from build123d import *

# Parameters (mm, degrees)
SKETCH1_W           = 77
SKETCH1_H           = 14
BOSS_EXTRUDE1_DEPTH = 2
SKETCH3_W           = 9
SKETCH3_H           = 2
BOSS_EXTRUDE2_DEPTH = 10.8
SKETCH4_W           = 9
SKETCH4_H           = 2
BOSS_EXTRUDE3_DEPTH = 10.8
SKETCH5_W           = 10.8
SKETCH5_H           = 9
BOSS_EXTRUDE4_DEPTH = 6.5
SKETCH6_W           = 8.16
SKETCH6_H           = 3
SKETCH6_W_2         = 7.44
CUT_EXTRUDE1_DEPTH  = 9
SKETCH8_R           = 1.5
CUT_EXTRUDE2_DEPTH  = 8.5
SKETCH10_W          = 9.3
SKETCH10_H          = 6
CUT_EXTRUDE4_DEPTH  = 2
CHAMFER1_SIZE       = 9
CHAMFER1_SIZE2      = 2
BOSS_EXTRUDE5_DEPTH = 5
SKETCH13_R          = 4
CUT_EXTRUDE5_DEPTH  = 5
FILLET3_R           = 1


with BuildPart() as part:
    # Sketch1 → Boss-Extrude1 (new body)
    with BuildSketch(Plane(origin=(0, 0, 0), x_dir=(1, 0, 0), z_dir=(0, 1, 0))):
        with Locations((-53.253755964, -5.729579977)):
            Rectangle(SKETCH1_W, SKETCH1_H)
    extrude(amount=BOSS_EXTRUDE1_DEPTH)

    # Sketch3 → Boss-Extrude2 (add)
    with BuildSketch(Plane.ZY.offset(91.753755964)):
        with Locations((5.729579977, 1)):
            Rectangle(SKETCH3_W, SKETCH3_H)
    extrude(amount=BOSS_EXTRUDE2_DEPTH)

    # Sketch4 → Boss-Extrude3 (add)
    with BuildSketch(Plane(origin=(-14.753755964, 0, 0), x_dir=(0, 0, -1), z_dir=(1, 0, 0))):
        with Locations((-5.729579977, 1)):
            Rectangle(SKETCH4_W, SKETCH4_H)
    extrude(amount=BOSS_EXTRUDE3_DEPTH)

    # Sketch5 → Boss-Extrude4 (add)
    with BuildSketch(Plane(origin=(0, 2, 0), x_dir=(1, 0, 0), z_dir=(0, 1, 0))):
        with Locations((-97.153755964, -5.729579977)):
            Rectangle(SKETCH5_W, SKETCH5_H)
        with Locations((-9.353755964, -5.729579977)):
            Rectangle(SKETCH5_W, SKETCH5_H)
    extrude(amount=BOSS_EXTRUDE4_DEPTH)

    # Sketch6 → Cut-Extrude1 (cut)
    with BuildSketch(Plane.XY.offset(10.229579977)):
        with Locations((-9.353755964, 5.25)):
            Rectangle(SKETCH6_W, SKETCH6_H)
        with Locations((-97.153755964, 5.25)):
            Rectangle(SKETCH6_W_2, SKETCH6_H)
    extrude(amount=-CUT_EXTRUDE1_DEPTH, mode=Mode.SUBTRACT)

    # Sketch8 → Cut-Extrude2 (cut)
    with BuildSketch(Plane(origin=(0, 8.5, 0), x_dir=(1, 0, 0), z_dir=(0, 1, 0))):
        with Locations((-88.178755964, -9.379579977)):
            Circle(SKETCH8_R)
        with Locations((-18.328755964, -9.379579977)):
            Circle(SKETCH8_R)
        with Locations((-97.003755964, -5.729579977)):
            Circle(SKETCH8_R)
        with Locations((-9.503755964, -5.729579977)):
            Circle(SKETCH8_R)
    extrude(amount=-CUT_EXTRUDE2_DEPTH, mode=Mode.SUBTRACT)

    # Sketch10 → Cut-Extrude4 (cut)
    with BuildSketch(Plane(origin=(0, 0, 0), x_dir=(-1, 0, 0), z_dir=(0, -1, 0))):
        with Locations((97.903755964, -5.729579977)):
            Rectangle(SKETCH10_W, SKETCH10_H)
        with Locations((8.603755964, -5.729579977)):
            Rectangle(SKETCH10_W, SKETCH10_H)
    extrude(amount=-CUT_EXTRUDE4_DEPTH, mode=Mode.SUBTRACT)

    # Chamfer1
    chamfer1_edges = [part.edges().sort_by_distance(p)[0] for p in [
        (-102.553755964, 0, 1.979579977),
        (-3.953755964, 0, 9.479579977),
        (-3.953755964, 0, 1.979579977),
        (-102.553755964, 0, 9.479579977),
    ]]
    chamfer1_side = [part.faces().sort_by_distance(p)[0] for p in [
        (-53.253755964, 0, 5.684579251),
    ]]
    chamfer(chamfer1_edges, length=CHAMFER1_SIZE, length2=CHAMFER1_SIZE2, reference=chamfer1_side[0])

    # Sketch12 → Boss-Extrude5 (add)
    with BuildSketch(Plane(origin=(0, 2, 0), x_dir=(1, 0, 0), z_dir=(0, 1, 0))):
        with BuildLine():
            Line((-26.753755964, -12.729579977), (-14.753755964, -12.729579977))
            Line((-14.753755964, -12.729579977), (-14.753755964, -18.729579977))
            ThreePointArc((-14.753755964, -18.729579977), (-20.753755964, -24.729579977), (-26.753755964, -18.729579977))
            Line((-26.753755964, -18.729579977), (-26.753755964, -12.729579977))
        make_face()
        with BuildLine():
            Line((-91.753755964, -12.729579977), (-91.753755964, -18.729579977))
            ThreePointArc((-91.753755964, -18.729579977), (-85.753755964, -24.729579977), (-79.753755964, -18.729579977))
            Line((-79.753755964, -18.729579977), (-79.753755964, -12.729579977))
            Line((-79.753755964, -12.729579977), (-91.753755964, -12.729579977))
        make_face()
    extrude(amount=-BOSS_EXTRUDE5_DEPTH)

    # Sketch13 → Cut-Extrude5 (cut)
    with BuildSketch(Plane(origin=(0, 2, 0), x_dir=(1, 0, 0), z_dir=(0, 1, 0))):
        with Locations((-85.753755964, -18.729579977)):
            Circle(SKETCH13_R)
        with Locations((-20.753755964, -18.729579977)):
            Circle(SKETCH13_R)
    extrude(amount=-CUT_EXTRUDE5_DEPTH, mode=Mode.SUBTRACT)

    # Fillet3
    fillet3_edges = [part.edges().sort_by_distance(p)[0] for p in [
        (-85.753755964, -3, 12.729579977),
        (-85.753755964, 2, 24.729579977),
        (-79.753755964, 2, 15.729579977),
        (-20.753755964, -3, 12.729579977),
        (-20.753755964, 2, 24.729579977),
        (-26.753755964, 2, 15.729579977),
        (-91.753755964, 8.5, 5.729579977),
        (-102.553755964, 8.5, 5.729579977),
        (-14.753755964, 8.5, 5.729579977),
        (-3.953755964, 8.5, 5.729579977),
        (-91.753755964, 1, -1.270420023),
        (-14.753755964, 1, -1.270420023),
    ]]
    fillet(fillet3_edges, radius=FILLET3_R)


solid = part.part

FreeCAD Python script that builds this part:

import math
import FreeCAD as App
import Part
import Sketcher
from FreeCAD import Vector
Q = App.Units.Quantity


def edges_at(feature, points):
    """Names of the edges that pass closest to the given points."""
    edges = feature.Shape.Edges
    near = lambda p: min(range(len(edges)), key=lambda i: edges[i].distToShape(Part.Vertex(*p))[0])
    return sorted({f"Edge{near(p) + 1}" for p in points})

doc = App.newDocument("Part")
body = doc.addObject("PartDesign::Body", "Body")

sketch1 = body.newObject("Sketcher::SketchObject", "Sketch")
sketch1.AttachmentSupport = (doc.getObject("XZ_Plane"), [""])
sketch1.MapMode = "FlatFace"
sketch1.addGeometry(Part.LineSegment(Vector(-92, -1, 0), Vector(-92, 13, 0)), False)
sketch1.addGeometry(Part.LineSegment(Vector(-92, 13, 0), Vector(-15, 13, 0)), False)
sketch1.addGeometry(Part.LineSegment(Vector(-15, 13, 0), Vector(-15, -1, 0)), False)
sketch1.addGeometry(Part.LineSegment(Vector(-15, -1, 0), Vector(-92, -1, 0)), False)
sketch1.addConstraint(Sketcher.Constraint("Coincident", 0, 2, 1, 1))
sketch1.addConstraint(Sketcher.Constraint("Coincident", 1, 2, 2, 1))
sketch1.addConstraint(Sketcher.Constraint("Coincident", 2, 2, 3, 1))
sketch1.addConstraint(Sketcher.Constraint("Coincident", 3, 2, 0, 1))
sketch1.addConstraint(Sketcher.Constraint("Vertical", 0))
sketch1.addConstraint(Sketcher.Constraint("Horizontal", 1))
sketch1.addConstraint(Sketcher.Constraint("Vertical", 2))
sketch1.addConstraint(Sketcher.Constraint("Horizontal", 3))
sketch1.addConstraint(Sketcher.Constraint("DistanceX", 1, 1, 1, 2, Q("77 mm")))
sketch1.addConstraint(Sketcher.Constraint("DistanceY", 0, 1, 0, 2, Q("14 mm")))
sketch1.addConstraint(Sketcher.Constraint("DistanceY", -1, 1, 0, 2, Q("12.72958 mm")))
sketch1.addConstraint(Sketcher.Constraint("DistanceX", 0, 2, -1, 1, Q("91.753756 mm")))
pad1 = body.newObject("PartDesign::Pad", "Pad")
pad1.Profile = sketch1
pad1.Length = 2
pad1.Reversed = True

sketch2 = body.newObject("Sketcher::SketchObject", "Sketch001")
sketch2.AttachmentSupport = (doc.getObject("YZ_Plane"), [""])
sketch2.MapMode = "FlatFace"
sketch2.AttachmentOffset = App.Placement(Vector(0, 0, -91.753756), App.Rotation())
sketch2.addGeometry(Part.LineSegment(Vector(2, 1.2, 0), Vector(0, 1.2, 0)), False)
sketch2.addGeometry(Part.LineSegment(Vector(0, 1.2, 0), Vector(0, 10.2, 0)), False)
sketch2.addGeometry(Part.LineSegment(Vector(0, 10.2, 0), Vector(2, 10.2, 0)), False)
sketch2.addGeometry(Part.LineSegment(Vector(2, 10.2, 0), Vector(2, 1.2, 0)), False)
sketch2.addConstraint(Sketcher.Constraint("Coincident", 0, 2, 1, 1))
sketch2.addConstraint(Sketcher.Constraint("Coincident", 1, 2, 2, 1))
sketch2.addConstraint(Sketcher.Constraint("Coincident", 2, 2, 3, 1))
sketch2.addConstraint(Sketcher.Constraint("Coincident", 3, 2, 0, 1))
sketch2.addConstraint(Sketcher.Constraint("Horizontal", 0))
sketch2.addConstraint(Sketcher.Constraint("Vertical", 1))
sketch2.addConstraint(Sketcher.Constraint("Horizontal", 2))
sketch2.addConstraint(Sketcher.Constraint("Vertical", 3))
sketch2.addConstraint(Sketcher.Constraint("PointOnObject", 0, 2, -2))
sketch2.addConstraint(Sketcher.Constraint("DistanceX", 0, 2, 0, 1, Q("2 mm")))
sketch2.addConstraint(Sketcher.Constraint("DistanceY", 1, 1, 1, 2, Q("9 mm")))
sketch2.addConstraint(Sketcher.Constraint("DistanceY", -1, 1, 0, 2, Q("1.22958 mm")))
pad2 = body.newObject("PartDesign::Pad", "Pad001")
pad2.Profile = sketch2
pad2.Length = 10.8
pad2.Reversed = True

sketch3 = body.newObject("Sketcher::SketchObject", "Sketch002")
sketch3.AttachmentSupport = (doc.getObject("YZ_Plane"), [""])
sketch3.MapMode = "FlatFace"
sketch3.AttachmentOffset = App.Placement(Vector(0, 0, -14.753756), App.Rotation())
sketch3.addGeometry(Part.LineSegment(Vector(2, 10.2, 0), Vector(0, 10.2, 0)), False)
sketch3.addGeometry(Part.LineSegment(Vector(0, 10.2, 0), Vector(0, 1.2, 0)), False)
sketch3.addGeometry(Part.LineSegment(Vector(0, 1.2, 0), Vector(2, 1.2, 0)), False)
sketch3.addGeometry(Part.LineSegment(Vector(2, 1.2, 0), Vector(2, 10.2, 0)), False)
sketch3.addConstraint(Sketcher.Constraint("Coincident", 0, 2, 1, 1))
sketch3.addConstraint(Sketcher.Constraint("Coincident", 1, 2, 2, 1))
sketch3.addConstraint(Sketcher.Constraint("Coincident", 2, 2, 3, 1))
sketch3.addConstraint(Sketcher.Constraint("Coincident", 3, 2, 0, 1))
sketch3.addConstraint(Sketcher.Constraint("Horizontal", 0))
sketch3.addConstraint(Sketcher.Constraint("Vertical", 1))
sketch3.addConstraint(Sketcher.Constraint("Horizontal", 2))
sketch3.addConstraint(Sketcher.Constraint("Vertical", 3))
sketch3.addConstraint(Sketcher.Constraint("PointOnObject", 0, 2, -2))
sketch3.addConstraint(Sketcher.Constraint("DistanceX", 0, 2, 0, 1, Q("2 mm")))
sketch3.addConstraint(Sketcher.Constraint("DistanceY", 1, 2, 1, 1, Q("9 mm")))
sketch3.addConstraint(Sketcher.Constraint("DistanceY", -1, 1, 0, 2, Q("10.22958 mm")))
pad3 = body.newObject("PartDesign::Pad", "Pad002")
pad3.Profile = sketch3
pad3.Length = 10.8

sketch4 = body.newObject("Sketcher::SketchObject", "Sketch003")
sketch4.AttachmentSupport = (doc.getObject("XZ_Plane"), [""])
sketch4.MapMode = "FlatFace"
sketch4.AttachmentOffset = App.Placement(Vector(0, 0, -2), App.Rotation())
sketch4.addGeometry(Part.LineSegment(Vector(-103, 1, 0), Vector(-103, 10, 0)), False)
sketch4.addGeometry(Part.LineSegment(Vector(-103, 10, 0), Vector(-92, 10, 0)), False)
sketch4.addGeometry(Part.LineSegment(Vector(-92, 10, 0), Vector(-92, 1, 0)), False)
sketch4.addGeometry(Part.LineSegment(Vector(-92, 1, 0), Vector(-103, 1, 0)), False)
sketch4.addGeometry(Part.LineSegment(Vector(-15, 1, 0), Vector(-15, 10, 0)), False)
sketch4.addGeometry(Part.LineSegment(Vector(-15, 10, 0), Vector(-4, 10, 0)), False)
sketch4.addGeometry(Part.LineSegment(Vector(-4, 10, 0), Vector(-4, 1, 0)), False)
sketch4.addGeometry(Part.LineSegment(Vector(-4, 1, 0), Vector(-15, 1, 0)), False)
sketch4.addConstraint(Sketcher.Constraint("Coincident", 0, 2, 1, 1))
sketch4.addConstraint(Sketcher.Constraint("Coincident", 1, 2, 2, 1))
sketch4.addConstraint(Sketcher.Constraint("Coincident", 2, 2, 3, 1))
sketch4.addConstraint(Sketcher.Constraint("Coincident", 3, 2, 0, 1))
sketch4.addConstraint(Sketcher.Constraint("Coincident", 4, 2, 5, 1))
sketch4.addConstraint(Sketcher.Constraint("Coincident", 5, 2, 6, 1))
sketch4.addConstraint(Sketcher.Constraint("Coincident", 6, 2, 7, 1))
sketch4.addConstraint(Sketcher.Constraint("Coincident", 7, 2, 4, 1))
sketch4.addConstraint(Sketcher.Constraint("Vertical", 0))
sketch4.addConstraint(Sketcher.Constraint("Horizontal", 1))
sketch4.addConstraint(Sketcher.Constraint("Vertical", 2))
sketch4.addConstraint(Sketcher.Constraint("Horizontal", 3))
sketch4.addConstraint(Sketcher.Constraint("Vertical", 4))
sketch4.addConstraint(Sketcher.Constraint("Horizontal", 5))
sketch4.addConstraint(Sketcher.Constraint("Vertical", 6))
sketch4.addConstraint(Sketcher.Constraint("Horizontal", 7))
sketch4.addConstraint(Sketcher.Constraint("Horizontal", 1, 2, 4, 2))
sketch4.addConstraint(Sketcher.Constraint("Horizontal", 3, 2, 6, 2))
sketch4.addConstraint(Sketcher.Constraint("Equal", 3, 5))
sketch4.addConstraint(Sketcher.Constraint("DistanceY", 0, 1, 0, 2, Q("9 mm")))
sketch4.addConstraint(Sketcher.Constraint("DistanceX", 1, 1, 1, 2, Q("10.8 mm")))
sketch4.addConstraint(Sketcher.Constraint("DistanceX", 1, 2, 4, 2, Q("77 mm")))
sketch4.addConstraint(Sketcher.Constraint("DistanceY", -1, 1, 0, 2, Q("10.22958 mm")))
sketch4.addConstraint(Sketcher.Constraint("DistanceX", 0, 2, -1, 1, Q("102.553756 mm")))
pad4 = body.newObject("PartDesign::Pad", "Pad003")
pad4.Profile = sketch4
pad4.Length = 6.5
pad4.Reversed = True

sketch5 = body.newObject("Sketcher::SketchObject", "Sketch004")
sketch5.AttachmentSupport = (doc.getObject("XY_Plane"), [""])
sketch5.MapMode = "FlatFace"
sketch5.AttachmentOffset = App.Placement(Vector(0, 0, 10.22958), App.Rotation())
sketch5.addGeometry(Part.LineSegment(Vector(-13.4, 6.8, 0), Vector(-13.4, 3.8, 0)), False)
sketch5.addGeometry(Part.LineSegment(Vector(-13.4, 3.8, 0), Vector(-5.3, 3.8, 0)), False)
sketch5.addGeometry(Part.LineSegment(Vector(-5.3, 3.8, 0), Vector(-5.3, 6.8, 0)), False)
sketch5.addGeometry(Part.LineSegment(Vector(-5.3, 6.8, 0), Vector(-13.4, 6.8, 0)), False)
sketch5.addGeometry(Part.LineSegment(Vector(-100.9, 6.8, 0), Vector(-100.9, 3.8, 0)), False)
sketch5.addGeometry(Part.LineSegment(Vector(-100.9, 3.8, 0), Vector(-93.4, 3.8, 0)), False)
sketch5.addGeometry(Part.LineSegment(Vector(-93.4, 3.8, 0), Vector(-93.4, 6.8, 0)), False)
sketch5.addGeometry(Part.LineSegment(Vector(-93.4, 6.8, 0), Vector(-100.9, 6.8, 0)), False)
sketch5.addConstraint(Sketcher.Constraint("Coincident", 0, 2, 1, 1))
sketch5.addConstraint(Sketcher.Constraint("Coincident", 1, 2, 2, 1))
sketch5.addConstraint(Sketcher.Constraint("Coincident", 2, 2, 3, 1))
sketch5.addConstraint(Sketcher.Constraint("Coincident", 3, 2, 0, 1))
sketch5.addConstraint(Sketcher.Constraint("Coincident", 4, 2, 5, 1))
sketch5.addConstraint(Sketcher.Constraint("Coincident", 5, 2, 6, 1))
sketch5.addConstraint(Sketcher.Constraint("Coincident", 6, 2, 7, 1))
sketch5.addConstraint(Sketcher.Constraint("Coincident", 7, 2, 4, 1))
sketch5.addConstraint(Sketcher.Constraint("Vertical", 0))
sketch5.addConstraint(Sketcher.Constraint("Horizontal", 1))
sketch5.addConstraint(Sketcher.Constraint("Vertical", 2))
sketch5.addConstraint(Sketcher.Constraint("Horizontal", 3))
sketch5.addConstraint(Sketcher.Constraint("Vertical", 4))
sketch5.addConstraint(Sketcher.Constraint("Horizontal", 5))
sketch5.addConstraint(Sketcher.Constraint("Vertical", 6))
sketch5.addConstraint(Sketcher.Constraint("Horizontal", 7))
sketch5.addConstraint(Sketcher.Constraint("Horizontal", 1, 2, 4, 2))
sketch5.addConstraint(Sketcher.Constraint("Horizontal", 3, 2, 6, 2))
sketch5.addConstraint(Sketcher.Constraint("DistanceY", 0, 2, 0, 1, Q("3 mm")))
sketch5.addConstraint(Sketcher.Constraint("DistanceX", 5, 2, 0, 2, Q("80 mm")))
sketch5.addConstraint(Sketcher.Constraint("DistanceX", 1, 1, 1, 2, Q("8.16 mm")))
sketch5.addConstraint(Sketcher.Constraint("DistanceX", 5, 1, 5, 2, Q("7.44 mm")))
sketch5.addConstraint(Sketcher.Constraint("DistanceY", -1, 1, 0, 2, Q("3.75 mm")))
sketch5.addConstraint(Sketcher.Constraint("DistanceX", 0, 2, -1, 1, Q("13.433756 mm")))
pocket1 = body.newObject("PartDesign::Pocket", "Pocket")
pocket1.Profile = sketch5
pocket1.Length = 9

sketch6 = body.newObject("Sketcher::SketchObject", "Sketch005")
sketch6.AttachmentSupport = (doc.getObject("XZ_Plane"), [""])
sketch6.MapMode = "FlatFace"
sketch6.AttachmentOffset = App.Placement(Vector(0, 0, -8.5), App.Rotation())
sketch6.addGeometry(Part.Circle(Vector(-88.2, 9.4, 0), Vector(0, 0, 1), 1.5), False)
sketch6.addGeometry(Part.Circle(Vector(-18.3, 9.4, 0), Vector(0, 0, 1), 1.5), False)
sketch6.addGeometry(Part.Circle(Vector(-97, 5.7, 0), Vector(0, 0, 1), 1.5), False)
sketch6.addGeometry(Part.Circle(Vector(-9.5, 5.7, 0), Vector(0, 0, 1), 1.5), False)
sketch6.addConstraint(Sketcher.Constraint("Equal", 0, 1))
sketch6.addConstraint(Sketcher.Constraint("Equal", 1, 2))
sketch6.addConstraint(Sketcher.Constraint("Equal", 2, 3))
sketch6.addConstraint(Sketcher.Constraint("Horizontal", 0, 3, 1, 3))
sketch6.addConstraint(Sketcher.Constraint("Horizontal", 2, 3, 3, 3))
sketch6.addConstraint(Sketcher.Constraint("Diameter", 0, Q("3 mm")))
sketch6.addConstraint(Sketcher.Constraint("DistanceX", 2, 3, 3, 3, Q("87.5 mm")))
sketch6.addConstraint(Sketcher.Constraint("DistanceX", 0, 3, 1, 3, Q("69.85 mm")))
sketch6.addConstraint(Sketcher.Constraint("DistanceY", 2, 3, 0, 3, Q("3.65 mm")))
sketch6.addConstraint(Sketcher.Constraint("DistanceX", 2, 3, 0, 3, Q("8.825 mm")))
sketch6.addConstraint(Sketcher.Constraint("DistanceY", -1, 1, 0, 3, Q("9.37958 mm")))
sketch6.addConstraint(Sketcher.Constraint("DistanceX", 0, 3, -1, 1, Q("88.178756 mm")))
pocket2 = body.newObject("PartDesign::Pocket", "Pocket001")
pocket2.Profile = sketch6
pocket2.Length = 8.5
pocket2.Reversed = True

sketch7 = body.newObject("Sketcher::SketchObject", "Sketch006")
sketch7.AttachmentSupport = (doc.getObject("XZ_Plane"), [""])
sketch7.MapMode = "FlatFace"
sketch7.addGeometry(Part.LineSegment(Vector(-93, 3, 0), Vector(-93, 9, 0)), False)
sketch7.addGeometry(Part.LineSegment(Vector(-93, 9, 0), Vector(-103, 9, 0)), False)
sketch7.addGeometry(Part.LineSegment(Vector(-103, 9, 0), Vector(-103, 3, 0)), False)
sketch7.addGeometry(Part.LineSegment(Vector(-103, 3, 0), Vector(-93, 3, 0)), False)
sketch7.addGeometry(Part.LineSegment(Vector(-4, 3, 0), Vector(-4, 9, 0)), False)
sketch7.addGeometry(Part.LineSegment(Vector(-4, 9, 0), Vector(-13, 9, 0)), False)
sketch7.addGeometry(Part.LineSegment(Vector(-13, 9, 0), Vector(-13, 3, 0)), False)
sketch7.addGeometry(Part.LineSegment(Vector(-13, 3, 0), Vector(-4, 3, 0)), False)
sketch7.addConstraint(Sketcher.Constraint("Coincident", 0, 2, 1, 1))
sketch7.addConstraint(Sketcher.Constraint("Coincident", 1, 2, 2, 1))
sketch7.addConstraint(Sketcher.Constraint("Coincident", 2, 2, 3, 1))
sketch7.addConstraint(Sketcher.Constraint("Coincident", 3, 2, 0, 1))
sketch7.addConstraint(Sketcher.Constraint("Coincident", 4, 2, 5, 1))
sketch7.addConstraint(Sketcher.Constraint("Coincident", 5, 2, 6, 1))
sketch7.addConstraint(Sketcher.Constraint("Coincident", 6, 2, 7, 1))
sketch7.addConstraint(Sketcher.Constraint("Coincident", 7, 2, 4, 1))
sketch7.addConstraint(Sketcher.Constraint("Vertical", 0))
sketch7.addConstraint(Sketcher.Constraint("Horizontal", 1))
sketch7.addConstraint(Sketcher.Constraint("Vertical", 2))
sketch7.addConstraint(Sketcher.Constraint("Horizontal", 3))
sketch7.addConstraint(Sketcher.Constraint("Vertical", 4))
sketch7.addConstraint(Sketcher.Constraint("Horizontal", 5))
sketch7.addConstraint(Sketcher.Constraint("Vertical", 6))
sketch7.addConstraint(Sketcher.Constraint("Horizontal", 7))
sketch7.addConstraint(Sketcher.Constraint("Horizontal", 1, 2, 4, 2))
sketch7.addConstraint(Sketcher.Constraint("Horizontal", 3, 2, 6, 2))
sketch7.addConstraint(Sketcher.Constraint("Equal", 3, 5))
sketch7.addConstraint(Sketcher.Constraint("DistanceY", 0, 1, 0, 2, Q("6 mm")))
sketch7.addConstraint(Sketcher.Constraint("DistanceX", 1, 2, 1, 1, Q("9.3 mm")))
sketch7.addConstraint(Sketcher.Constraint("DistanceX", 0, 2, 5, 2, Q("80 mm")))
sketch7.addConstraint(Sketcher.Constraint("DistanceY", -1, 1, 0, 2, Q("8.72958 mm")))
sketch7.addConstraint(Sketcher.Constraint("DistanceX", 0, 2, -1, 1, Q("93.253756 mm")))
pocket3 = body.newObject("PartDesign::Pocket", "Pocket002")
pocket3.Profile = sketch7
pocket3.Length = 2
doc.recompute()

chamfer = body.newObject("PartDesign::Chamfer", "Chamfer")
chamfer.Base = (pocket3, edges_at(pocket3, [
    (-102.554, 0, 1.98),
    (-3.954, 0, 9.48),
    (-3.954, 0, 1.98),
    (-102.554, 0, 9.48),
]))
chamfer.ChamferType = "Two distances"
chamfer.Size = 9
chamfer.Size2 = 2

sketch8 = body.newObject("Sketcher::SketchObject", "Sketch007")
sketch8.AttachmentSupport = (doc.getObject("XZ_Plane"), [""])
sketch8.MapMode = "FlatFace"
sketch8.AttachmentOffset = App.Placement(Vector(0, 0, -2), App.Rotation())
sketch8.addGeometry(Part.LineSegment(Vector(-15, 13, 0), Vector(-27, 13, 0)), False)
sketch8.addGeometry(Part.LineSegment(Vector(-27, 13, 0), Vector(-27, 19, 0)), False)
sketch8.addGeometry(Part.ArcOfCircle(Part.Circle(Vector(-21, 19, 0), Vector(0, 0, 1), 6), math.radians(0), math.radians(180)), False)
sketch8.addGeometry(Part.LineSegment(Vector(-15, 19, 0), Vector(-15, 13, 0)), False)
sketch8.addGeometry(Part.LineSegment(Vector(-92, 13, 0), Vector(-92, 19, 0)), False)
sketch8.addGeometry(Part.ArcOfCircle(Part.Circle(Vector(-86, 19, 0), Vector(0, 0, 1), 6), math.radians(0), math.radians(180)), False)
sketch8.addGeometry(Part.LineSegment(Vector(-80, 19, 0), Vector(-80, 13, 0)), False)
sketch8.addGeometry(Part.LineSegment(Vector(-80, 13, 0), Vector(-92, 13, 0)), False)
sketch8.addConstraint(Sketcher.Constraint("Coincident", 0, 2, 1, 1))
sketch8.addConstraint(Sketcher.Constraint("Tangent", 1, 2, 2, 2))
sketch8.addConstraint(Sketcher.Constraint("Tangent", 2, 1, 3, 1))
sketch8.addConstraint(Sketcher.Constraint("Coincident", 3, 2, 0, 1))
sketch8.addConstraint(Sketcher.Constraint("Tangent", 4, 2, 5, 2))
sketch8.addConstraint(Sketcher.Constraint("Tangent", 5, 1, 6, 1))
sketch8.addConstraint(Sketcher.Constraint("Coincident", 6, 2, 7, 1))
sketch8.addConstraint(Sketcher.Constraint("Coincident", 7, 2, 4, 1))
sketch8.addConstraint(Sketcher.Constraint("Horizontal", 0))
sketch8.addConstraint(Sketcher.Constraint("Vertical", 1))
sketch8.addConstraint(Sketcher.Constraint("Vertical", 3))
sketch8.addConstraint(Sketcher.Constraint("Vertical", 4))
sketch8.addConstraint(Sketcher.Constraint("Vertical", 6))
sketch8.addConstraint(Sketcher.Constraint("Horizontal", 7))
sketch8.addConstraint(Sketcher.Constraint("Equal", 2, 5))
sketch8.addConstraint(Sketcher.Constraint("Horizontal", 2, 3, 5, 3))
sketch8.addConstraint(Sketcher.Constraint("Horizontal", 3, 2, 6, 2))
sketch8.addConstraint(Sketcher.Constraint("Radius", 2, Q("6 mm")))
sketch8.addConstraint(Sketcher.Constraint("DistanceY", 1, 1, 1, 2, Q("6 mm")))
sketch8.addConstraint(Sketcher.Constraint("DistanceX", 5, 3, 2, 3, Q("65 mm")))
sketch8.addConstraint(Sketcher.Constraint("DistanceY", -1, 1, 2, 3, Q("18.72958 mm")))
sketch8.addConstraint(Sketcher.Constraint("DistanceX", 2, 3, -1, 1, Q("20.753756 mm")))
pad5 = body.newObject("PartDesign::Pad", "Pad004")
pad5.Profile = sketch8
pad5.Length = 5

sketch9 = body.newObject("Sketcher::SketchObject", "Sketch008")
sketch9.AttachmentSupport = (doc.getObject("XZ_Plane"), [""])
sketch9.MapMode = "FlatFace"
sketch9.AttachmentOffset = App.Placement(Vector(0, 0, -2), App.Rotation())
sketch9.addGeometry(Part.Circle(Vector(-85.8, 18.7, 0), Vector(0, 0, 1), 4), False)
sketch9.addGeometry(Part.Circle(Vector(-20.8, 18.7, 0), Vector(0, 0, 1), 4), False)
sketch9.addConstraint(Sketcher.Constraint("Equal", 0, 1))
sketch9.addConstraint(Sketcher.Constraint("Horizontal", 0, 3, 1, 3))
sketch9.addConstraint(Sketcher.Constraint("Diameter", 0, Q("8 mm")))
sketch9.addConstraint(Sketcher.Constraint("DistanceX", 0, 3, 1, 3, Q("65 mm")))
sketch9.addConstraint(Sketcher.Constraint("DistanceY", -1, 1, 0, 3, Q("18.72958 mm")))
sketch9.addConstraint(Sketcher.Constraint("DistanceX", 0, 3, -1, 1, Q("85.753756 mm")))
pocket4 = body.newObject("PartDesign::Pocket", "Pocket003")
pocket4.Profile = sketch9
pocket4.Length = 5
pocket4.Reversed = True
doc.recompute()

fillet = body.newObject("PartDesign::Fillet", "Fillet")
fillet.Base = (pocket4, edges_at(pocket4, [
    (-85.754, -3, 12.73),
    (-85.754, 2, 24.73),
    (-79.754, 2, 15.73),
    (-20.754, -3, 12.73),
    (-20.754, 2, 24.73),
    (-26.754, 2, 15.73),
    (-91.754, 8.5, 5.73),
    (-102.554, 8.5, 5.73),
    (-14.754, 8.5, 5.73),
    (-3.954, 8.5, 5.73),
    (-91.754, 1, -1.27),
    (-14.754, 1, -1.27),
]))
fillet.Radius = 1

doc.recompute()
